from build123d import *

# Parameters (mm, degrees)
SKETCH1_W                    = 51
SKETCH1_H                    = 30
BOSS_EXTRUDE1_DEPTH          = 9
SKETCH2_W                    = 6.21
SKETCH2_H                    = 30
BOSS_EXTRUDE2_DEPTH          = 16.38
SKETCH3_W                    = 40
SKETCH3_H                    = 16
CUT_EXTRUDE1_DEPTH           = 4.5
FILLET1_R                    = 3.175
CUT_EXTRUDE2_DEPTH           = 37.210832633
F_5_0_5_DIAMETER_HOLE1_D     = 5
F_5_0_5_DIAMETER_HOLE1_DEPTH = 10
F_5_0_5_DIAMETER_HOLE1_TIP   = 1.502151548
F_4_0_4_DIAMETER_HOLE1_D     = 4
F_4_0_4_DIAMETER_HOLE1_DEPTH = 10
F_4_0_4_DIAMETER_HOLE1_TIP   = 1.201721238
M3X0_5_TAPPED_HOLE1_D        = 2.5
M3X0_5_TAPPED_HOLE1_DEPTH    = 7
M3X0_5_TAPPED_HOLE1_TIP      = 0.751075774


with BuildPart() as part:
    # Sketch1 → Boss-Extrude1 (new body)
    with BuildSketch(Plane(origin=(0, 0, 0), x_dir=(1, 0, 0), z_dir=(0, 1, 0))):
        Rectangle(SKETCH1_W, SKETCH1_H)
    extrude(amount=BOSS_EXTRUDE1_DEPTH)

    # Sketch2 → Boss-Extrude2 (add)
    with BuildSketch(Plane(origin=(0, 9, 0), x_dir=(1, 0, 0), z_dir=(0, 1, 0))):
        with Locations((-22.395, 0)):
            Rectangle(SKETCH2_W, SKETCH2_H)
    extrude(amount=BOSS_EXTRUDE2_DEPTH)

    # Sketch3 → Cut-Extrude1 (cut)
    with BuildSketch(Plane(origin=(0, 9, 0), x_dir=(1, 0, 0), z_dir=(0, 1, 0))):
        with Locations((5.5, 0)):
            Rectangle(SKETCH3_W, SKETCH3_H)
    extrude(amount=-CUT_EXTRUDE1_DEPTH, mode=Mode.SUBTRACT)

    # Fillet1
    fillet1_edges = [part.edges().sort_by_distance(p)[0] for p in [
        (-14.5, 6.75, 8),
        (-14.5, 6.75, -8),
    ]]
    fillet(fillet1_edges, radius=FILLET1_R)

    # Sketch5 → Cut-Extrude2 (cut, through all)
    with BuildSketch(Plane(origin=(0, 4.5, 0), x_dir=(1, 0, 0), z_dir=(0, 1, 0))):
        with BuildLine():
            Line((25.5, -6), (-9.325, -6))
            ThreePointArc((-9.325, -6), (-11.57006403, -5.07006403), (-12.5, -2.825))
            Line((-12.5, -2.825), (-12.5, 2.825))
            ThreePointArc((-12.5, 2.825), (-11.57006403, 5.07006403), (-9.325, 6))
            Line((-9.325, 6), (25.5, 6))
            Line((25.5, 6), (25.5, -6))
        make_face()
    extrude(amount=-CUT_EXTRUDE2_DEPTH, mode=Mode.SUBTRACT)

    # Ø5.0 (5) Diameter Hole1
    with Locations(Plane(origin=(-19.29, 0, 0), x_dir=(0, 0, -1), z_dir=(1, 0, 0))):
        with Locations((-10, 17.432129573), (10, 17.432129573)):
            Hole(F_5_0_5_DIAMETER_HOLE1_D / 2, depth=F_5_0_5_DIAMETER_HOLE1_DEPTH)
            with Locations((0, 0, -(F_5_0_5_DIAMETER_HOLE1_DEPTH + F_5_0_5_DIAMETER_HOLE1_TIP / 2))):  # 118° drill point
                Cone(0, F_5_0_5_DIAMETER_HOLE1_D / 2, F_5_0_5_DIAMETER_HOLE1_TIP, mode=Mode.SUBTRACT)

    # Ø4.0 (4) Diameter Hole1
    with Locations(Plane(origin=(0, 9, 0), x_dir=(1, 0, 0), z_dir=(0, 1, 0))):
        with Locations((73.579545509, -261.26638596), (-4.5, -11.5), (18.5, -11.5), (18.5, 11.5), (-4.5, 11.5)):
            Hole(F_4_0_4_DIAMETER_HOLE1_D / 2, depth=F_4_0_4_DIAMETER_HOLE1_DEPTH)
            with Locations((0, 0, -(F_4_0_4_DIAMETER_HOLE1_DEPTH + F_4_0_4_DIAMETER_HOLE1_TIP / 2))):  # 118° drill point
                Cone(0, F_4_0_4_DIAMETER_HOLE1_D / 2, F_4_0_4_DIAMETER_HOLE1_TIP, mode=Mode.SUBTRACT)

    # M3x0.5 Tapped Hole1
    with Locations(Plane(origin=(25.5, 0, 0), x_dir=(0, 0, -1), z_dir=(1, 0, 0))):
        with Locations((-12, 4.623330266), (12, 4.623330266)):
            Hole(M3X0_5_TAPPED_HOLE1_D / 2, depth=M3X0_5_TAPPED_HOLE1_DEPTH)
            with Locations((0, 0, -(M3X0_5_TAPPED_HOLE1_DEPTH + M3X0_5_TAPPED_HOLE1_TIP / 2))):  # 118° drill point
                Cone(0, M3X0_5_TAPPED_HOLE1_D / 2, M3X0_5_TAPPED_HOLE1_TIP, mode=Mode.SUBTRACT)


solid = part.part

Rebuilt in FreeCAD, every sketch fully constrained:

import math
import FreeCAD as App
import Part
import Sketcher

V = App.Vector


def edges_at(feature, points):
    """Names of the edges that pass closest to the given points."""
    edges = feature.Shape.Edges
    near = lambda p: min(range(len(edges)), key=lambda i: edges[i].distToShape(Part.Vertex(*p))[0])
    return sorted({f"Edge{near(p) + 1}" for p in points})

doc = App.newDocument("Part")
body = doc.addObject("PartDesign::Body", "Body")

# Sketch on XZ plane
sketch1 = body.newObject("Sketcher::SketchObject", "Sketch")
sketch1.AttachmentSupport = (doc.getObject("XZ_Plane"), [""])
sketch1.MapMode = "FlatFace"
sketch1.addGeometry(Part.LineSegment(V(-25.5, -15, 0), V(-25.5, 15, 0)), False)
sketch1.addGeometry(Part.LineSegment(V(-25.5, 15, 0), V(25.5, 15, 0)), False)
sketch1.addGeometry(Part.LineSegment(V(25.5, 15, 0), V(25.5, -15, 0)), False)
sketch1.addGeometry(Part.LineSegment(V(25.5, -15, 0), V(-25.5, -15, 0)), False)
sketch1.addConstraint(Sketcher.Constraint("Coincident", 0, 2, 1, 1))
sketch1.addConstraint(Sketcher.Constraint("Coincident", 1, 2, 2, 1))
sketch1.addConstraint(Sketcher.Constraint("Coincident", 2, 2, 3, 1))
sketch1.addConstraint(Sketcher.Constraint("Coincident", 3, 2, 0, 1))
sketch1.addConstraint(Sketcher.Constraint("Vertical", 0))
sketch1.addConstraint(Sketcher.Constraint("Horizontal", 1))
sketch1.addConstraint(Sketcher.Constraint("Vertical", 2))
sketch1.addConstraint(Sketcher.Constraint("Horizontal", 3))
sketch1.addConstraint(Sketcher.Constraint("Symmetric", 0, 2, 2, 2, -1, 1))
sketch1.addConstraint(Sketcher.Constraint("DistanceX", 1, 1, 1, 2, 51.0))
sketch1.addConstraint(Sketcher.Constraint("DistanceY", 0, 1, 0, 2, 30.0))
pad1 = body.newObject("PartDesign::Pad", "Pad")
pad1.Profile = sketch1
pad1.Length = 9
pad1.Reversed = True

# Sketch on XZ plane
sketch2 = body.newObject("Sketcher::SketchObject", "Sketch001")
sketch2.AttachmentSupport = (doc.getObject("XZ_Plane"), [""])
sketch2.MapMode = "FlatFace"
sketch2.AttachmentOffset = App.Placement(V(0, 0, -9), App.Rotation())
sketch2.addGeometry(Part.LineSegment(V(-25.5, -15, 0), V(-25.5, 15, 0)), False)
sketch2.addGeometry(Part.LineSegment(V(-25.5, 15, 0), V(-19.29, 15, 0)), False)
sketch2.addGeometry(Part.LineSegment(V(-19.29, 15, 0), V(-19.29, -15, 0)), False)
sketch2.addGeometry(Part.LineSegment(V(-19.29, -15, 0), V(-25.5, -15, 0)), False)
sketch2.addConstraint(Sketcher.Constraint("Coincident", 0, 2, 1, 1))
sketch2.addConstraint(Sketcher.Constraint("Coincident", 1, 2, 2, 1))
sketch2.addConstraint(Sketcher.Constraint("Coincident", 2, 2, 3, 1))
sketch2.addConstraint(Sketcher.Constraint("Coincident", 3, 2, 0, 1))
sketch2.addConstraint(Sketcher.Constraint("Vertical", 0))
sketch2.addConstraint(Sketcher.Constraint("Horizontal", 1))
sketch2.addConstraint(Sketcher.Constraint("Vertical", 2))
sketch2.addConstraint(Sketcher.Constraint("Horizontal", 3))
sketch2.addConstraint(Sketcher.Constraint("DistanceY", 0, 1, 0, 2, 30.0))
sketch2.addConstraint(Sketcher.Constraint("DistanceY", -1, 1, 0, 2, 15.0))
sketch2.addConstraint(Sketcher.Constraint("DistanceX", 1, 1, 1, 2, 6.21))
sketch2.addConstraint(Sketcher.Constraint("DistanceX", 0, 2, -1, 1, 25.5))
pad2 = body.newObject("PartDesign::Pad", "Pad001")
pad2.Profile = sketch2
pad2.Length = 16.38
pad2.Reversed = True

# Sketch on XZ plane
sketch3 = body.newObject("Sketcher::SketchObject", "Sketch002")
sketch3.AttachmentSupport = (doc.getObject("XZ_Plane"), [""])
sketch3.MapMode = "FlatFace"
sketch3.AttachmentOffset = App.Placement(V(0, 0, -9), App.Rotation())
sketch3.addGeometry(Part.LineSegment(V(-14.5, -8, 0), V(-14.5, 8, 0)), False)
sketch3.addGeometry(Part.LineSegment(V(-14.5, 8, 0), V(25.5, 8, 0)), False)
sketch3.addGeometry(Part.LineSegment(V(25.5, 8, 0), V(25.5, -8, 0)), False)
sketch3.addGeometry(Part.LineSegment(V(25.5, -8, 0), V(-14.5, -8, 0)), False)
sketch3.addConstraint(Sketcher.Constraint("Coincident", 0, 2, 1, 1))
sketch3.addConstraint(Sketcher.Constraint("Coincident", 1, 2, 2, 1))
sketch3.addConstraint(Sketcher.Constraint("Coincident", 2, 2, 3, 1))
sketch3.addConstraint(Sketcher.Constraint("Coincident", 3, 2, 0, 1))
sketch3.addConstraint(Sketcher.Constraint("Vertical", 0))
sketch3.addConstraint(Sketcher.Constraint("Horizontal", 1))
sketch3.addConstraint(Sketcher.Constraint("Vertical", 2))
sketch3.addConstraint(Sketcher.Constraint("Horizontal", 3))
sketch3.addConstraint(Sketcher.Constraint("DistanceX", 1, 1, 1, 2, 40.0))
sketch3.addConstraint(Sketcher.Constraint("DistanceY", 0, 1, 0, 2, 16.0))
sketch3.addConstraint(Sketcher.Constraint("DistanceY", -1, 1, 0, 2, 8.0))
sketch3.addConstraint(Sketcher.Constraint("DistanceX", 0, 2, -1, 1, 14.5))
pocket1 = body.newObject("PartDesign::Pocket", "Pocket")
pocket1.Profile = sketch3
pocket1.Length = 4.5
pocket1.Reversed = True
doc.recompute()

fillet = body.newObject("PartDesign::Fillet", "Fillet")
fillet.Base = (pocket1, edges_at(pocket1, [(-14.5, 6.75, 8), (-14.5, 6.75, -8)]))
fillet.Radius = 3.175

# Sketch on XZ plane
sketch4 = body.newObject("Sketcher::SketchObject", "Sketch003")
sketch4.AttachmentSupport = (doc.getObject("XZ_Plane"), [""])
sketch4.MapMode = "FlatFace"
sketch4.AttachmentOffset = App.Placement(V(0, 0, -4.5), App.Rotation())
sketch4.addGeometry(Part.LineSegment(V(-9.325, 6, 0), V(25.5, 6, 0)), False)
sketch4.addGeometry(Part.LineSegment(V(25.5, 6, 0), V(25.5, -6, 0)), False)
sketch4.addGeometry(Part.LineSegment(V(25.5, -6, 0), V(-9.325, -6, 0)), False)
sketch4.addGeometry(Part.ArcOfCircle(Part.Circle(V(-9.325, -2.825, 0), V(0, 0, 1), 3.175), math.radians(-180), math.radians(-90)), False)
sketch4.addGeometry(Part.LineSegment(V(-12.5, -2.825, 0), V(-12.5, 2.825, 0)), False)
sketch4.addGeometry(Part.ArcOfCircle(Part.Circle(V(-9.325, 2.825, 0), V(0, 0, 1), 3.175), math.radians(90), math.radians(180)), False)
sketch4.addConstraint(Sketcher.Constraint("Coincident", 0, 2, 1, 1))
sketch4.addConstraint(Sketcher.Constraint("Coincident", 1, 2, 2, 1))
sketch4.addConstraint(Sketcher.Constraint("Tangent", 2, 2, 3, 2))
sketch4.addConstraint(Sketcher.Constraint("Tangent", 3, 1, 4, 1))
sketch4.addConstraint(Sketcher.Constraint("Tangent", 4, 2, 5, 2))
sketch4.addConstraint(Sketcher.Constraint("Tangent", 5, 1, 0, 1))
sketch4.addConstraint(Sketcher.Constraint("Horizontal", 0))
sketch4.addConstraint(Sketcher.Constraint("Vertical", 1))
sketch4.addConstraint(Sketcher.Constraint("Horizontal", 2))
sketch4.addConstraint(Sketcher.Constraint("Vertical", 4))
sketch4.addConstraint(Sketcher.Constraint("Equal", 3, 5))
sketch4.addConstraint(Sketcher.Constraint("DistanceY", 1, 2, 1, 1, 12.0))
sketch4.addConstraint(Sketcher.Constraint("DistanceY", -1, 1, 0, 2, 6.0))
sketch4.addConstraint(Sketcher.Constraint("Radius", 3, 3.175))
sketch4.addConstraint(Sketcher.Constraint("DistanceX", 3, 1, 1, 2, 38.0))
sketch4.addConstraint(Sketcher.Constraint("DistanceX", -1, 1, 0, 2, 25.5))
pocket2 = body.newObject("PartDesign::Pocket", "Pocket001")
pocket2.Profile = sketch4
pocket2.Type = "ThroughAll"
pocket2.Reversed = True

# Sketch on YZ plane
sketch5 = body.newObject("Sketcher::SketchObject", "Sketch004")
sketch5.AttachmentSupport = (doc.getObject("YZ_Plane"), [""])
sketch5.MapMode = "FlatFace"
sketch5.AttachmentOffset = App.Placement(V(0, 0, -19.29), App.Rotation())
sketch5.addGeometry(Part.Circle(V(17.43213, 10, 0), V(0, 0, 1), 2.5), False)
sketch5.addGeometry(Part.Circle(V(17.43213, -10, 0), V(0, 0, 1), 2.5), False)
sketch5.addConstraint(Sketcher.Constraint("Equal", 0, 1))
sketch5.addConstraint(Sketcher.Constraint("Symmetric", 0, 3, 1, 3, -1))
sketch5.addConstraint(Sketcher.Constraint("Diameter", 0, 5.0))
sketch5.addConstraint(Sketcher.Constraint("DistanceY", -1, 1, 0, 3, 10.0))
sketch5.addConstraint(Sketcher.Constraint("DistanceX", -1, 1, 0, 3, 17.43213))
doc.recompute()
hole = body.newObject("PartDesign::Hole", "Hole")
hole.Profile = sketch5
hole.ThreadType = "None"
hole.Diameter = 5
hole.DepthType = "Dimension"
hole.Depth = 10
hole.DrillPoint = "Angled"
hole.DrillPointAngle = 118

# Sketch on XZ plane
sketch6 = body.newObject("Sketcher::SketchObject", "Sketch005")
sketch6.AttachmentSupport = (doc.getObject("XZ_Plane"), [""])
sketch6.MapMode = "FlatFace"
sketch6.AttachmentOffset = App.Placement(V(0, 0, -9), App.Rotation())
sketch6.addGeometry(Part.Circle(V(73.579546, 261.266386, 0), V(0, 0, 1), 2), False)
sketch6.addGeometry(Part.Circle(V(-4.5, 11.5, 0), V(0, 0, 1), 2), False)
sketch6.addGeometry(Part.Circle(V(18.5, 11.5, 0), V(0, 0, 1), 2), False)
sketch6.addGeometry(Part.Circle(V(18.5, -11.5, 0), V(0, 0, 1), 2), False)
sketch6.addGeometry(Part.Circle(V(-4.5, -11.5, 0), V(0, 0, 1), 2), False)
sketch6.addConstraint(Sketcher.Constraint("Equal", 0, 1))
sketch6.addConstraint(Sketcher.Constraint("Equal", 1, 2))
sketch6.addConstraint(Sketcher.Constraint("Equal", 2, 3))
sketch6.addConstraint(Sketcher.Constraint("Equal", 3, 4))
sketch6.addConstraint(Sketcher.Constraint("Symmetric", 2, 3, 3, 3, -1))
sketch6.addConstraint(Sketcher.Constraint("Symmetric", 1, 3, 4, 3, -1))
sketch6.addConstraint(Sketcher.Constraint("Horizontal", 1, 3, 2, 3))
sketch6.addConstraint(Sketcher.Constraint("Diameter", 0, 4.0))
sketch6.addConstraint(Sketcher.Constraint("DistanceX", 1, 3, 2, 3, 23.0))
sketch6.addConstraint(Sketcher.Constraint("DistanceY", 3, 3, 2, 3, 23.0))
sketch6.addConstraint(Sketcher.Constraint("DistanceX", 1, 3, -1, 1, 4.5))
sketch6.addConstraint(Sketcher.Constraint("DistanceX", -1, 1, 0, 3, 73.579546))
sketch6.addConstraint(Sketcher.Constraint("DistanceY", -1, 1, 0, 3, 261.266386))
doc.recompute()
hole2 = body.newObject("PartDesign::Hole", "Hole001")
hole2.Profile = sketch6
hole2.ThreadType = "None"
hole2.Diameter = 4
hole2.DepthType = "Dimension"
hole2.Depth = 10
hole2.DrillPoint = "Angled"
hole2.DrillPointAngle = 118
hole2.Reversed = True

# Sketch on YZ plane
sketch7 = body.newObject("Sketcher::SketchObject", "Sketch006")
sketch7.AttachmentSupport = (doc.getObject("YZ_Plane"), [""])
sketch7.MapMode = "FlatFace"
sketch7.AttachmentOffset = App.Placement(V(0, 0, 25.5), App.Rotation())
sketch7.addGeometry(Part.Circle(V(4.62333, 12, 0), V(0, 0, 1), 1.25), False)
sketch7.addGeometry(Part.Circle(V(4.62333, -12, 0), V(0, 0, 1), 1.25), False)
sketch7.addConstraint(Sketcher.Constraint("Equal", 0, 1))
sketch7.addConstraint(Sketcher.Constraint("Symmetric", 0, 3, 1, 3, -1))
sketch7.addConstraint(Sketcher.Constraint("Diameter", 0, 2.5))
sketch7.addConstraint(Sketcher.Constraint("DistanceY", -1, 1, 0, 3, 12.0))
sketch7.addConstraint(Sketcher.Constraint("DistanceX", -1, 1, 0, 3, 4.62333))
doc.recompute()
hole3 = body.newObject("PartDesign::Hole", "Hole002")
hole3.Profile = sketch7
hole3.ThreadType = "None"
hole3.Diameter = 2.5
hole3.DepthType = "Dimension"
hole3.Depth = 7
hole3.DrillPoint = "Angled"
hole3.DrillPointAngle = 118

doc.recompute()
